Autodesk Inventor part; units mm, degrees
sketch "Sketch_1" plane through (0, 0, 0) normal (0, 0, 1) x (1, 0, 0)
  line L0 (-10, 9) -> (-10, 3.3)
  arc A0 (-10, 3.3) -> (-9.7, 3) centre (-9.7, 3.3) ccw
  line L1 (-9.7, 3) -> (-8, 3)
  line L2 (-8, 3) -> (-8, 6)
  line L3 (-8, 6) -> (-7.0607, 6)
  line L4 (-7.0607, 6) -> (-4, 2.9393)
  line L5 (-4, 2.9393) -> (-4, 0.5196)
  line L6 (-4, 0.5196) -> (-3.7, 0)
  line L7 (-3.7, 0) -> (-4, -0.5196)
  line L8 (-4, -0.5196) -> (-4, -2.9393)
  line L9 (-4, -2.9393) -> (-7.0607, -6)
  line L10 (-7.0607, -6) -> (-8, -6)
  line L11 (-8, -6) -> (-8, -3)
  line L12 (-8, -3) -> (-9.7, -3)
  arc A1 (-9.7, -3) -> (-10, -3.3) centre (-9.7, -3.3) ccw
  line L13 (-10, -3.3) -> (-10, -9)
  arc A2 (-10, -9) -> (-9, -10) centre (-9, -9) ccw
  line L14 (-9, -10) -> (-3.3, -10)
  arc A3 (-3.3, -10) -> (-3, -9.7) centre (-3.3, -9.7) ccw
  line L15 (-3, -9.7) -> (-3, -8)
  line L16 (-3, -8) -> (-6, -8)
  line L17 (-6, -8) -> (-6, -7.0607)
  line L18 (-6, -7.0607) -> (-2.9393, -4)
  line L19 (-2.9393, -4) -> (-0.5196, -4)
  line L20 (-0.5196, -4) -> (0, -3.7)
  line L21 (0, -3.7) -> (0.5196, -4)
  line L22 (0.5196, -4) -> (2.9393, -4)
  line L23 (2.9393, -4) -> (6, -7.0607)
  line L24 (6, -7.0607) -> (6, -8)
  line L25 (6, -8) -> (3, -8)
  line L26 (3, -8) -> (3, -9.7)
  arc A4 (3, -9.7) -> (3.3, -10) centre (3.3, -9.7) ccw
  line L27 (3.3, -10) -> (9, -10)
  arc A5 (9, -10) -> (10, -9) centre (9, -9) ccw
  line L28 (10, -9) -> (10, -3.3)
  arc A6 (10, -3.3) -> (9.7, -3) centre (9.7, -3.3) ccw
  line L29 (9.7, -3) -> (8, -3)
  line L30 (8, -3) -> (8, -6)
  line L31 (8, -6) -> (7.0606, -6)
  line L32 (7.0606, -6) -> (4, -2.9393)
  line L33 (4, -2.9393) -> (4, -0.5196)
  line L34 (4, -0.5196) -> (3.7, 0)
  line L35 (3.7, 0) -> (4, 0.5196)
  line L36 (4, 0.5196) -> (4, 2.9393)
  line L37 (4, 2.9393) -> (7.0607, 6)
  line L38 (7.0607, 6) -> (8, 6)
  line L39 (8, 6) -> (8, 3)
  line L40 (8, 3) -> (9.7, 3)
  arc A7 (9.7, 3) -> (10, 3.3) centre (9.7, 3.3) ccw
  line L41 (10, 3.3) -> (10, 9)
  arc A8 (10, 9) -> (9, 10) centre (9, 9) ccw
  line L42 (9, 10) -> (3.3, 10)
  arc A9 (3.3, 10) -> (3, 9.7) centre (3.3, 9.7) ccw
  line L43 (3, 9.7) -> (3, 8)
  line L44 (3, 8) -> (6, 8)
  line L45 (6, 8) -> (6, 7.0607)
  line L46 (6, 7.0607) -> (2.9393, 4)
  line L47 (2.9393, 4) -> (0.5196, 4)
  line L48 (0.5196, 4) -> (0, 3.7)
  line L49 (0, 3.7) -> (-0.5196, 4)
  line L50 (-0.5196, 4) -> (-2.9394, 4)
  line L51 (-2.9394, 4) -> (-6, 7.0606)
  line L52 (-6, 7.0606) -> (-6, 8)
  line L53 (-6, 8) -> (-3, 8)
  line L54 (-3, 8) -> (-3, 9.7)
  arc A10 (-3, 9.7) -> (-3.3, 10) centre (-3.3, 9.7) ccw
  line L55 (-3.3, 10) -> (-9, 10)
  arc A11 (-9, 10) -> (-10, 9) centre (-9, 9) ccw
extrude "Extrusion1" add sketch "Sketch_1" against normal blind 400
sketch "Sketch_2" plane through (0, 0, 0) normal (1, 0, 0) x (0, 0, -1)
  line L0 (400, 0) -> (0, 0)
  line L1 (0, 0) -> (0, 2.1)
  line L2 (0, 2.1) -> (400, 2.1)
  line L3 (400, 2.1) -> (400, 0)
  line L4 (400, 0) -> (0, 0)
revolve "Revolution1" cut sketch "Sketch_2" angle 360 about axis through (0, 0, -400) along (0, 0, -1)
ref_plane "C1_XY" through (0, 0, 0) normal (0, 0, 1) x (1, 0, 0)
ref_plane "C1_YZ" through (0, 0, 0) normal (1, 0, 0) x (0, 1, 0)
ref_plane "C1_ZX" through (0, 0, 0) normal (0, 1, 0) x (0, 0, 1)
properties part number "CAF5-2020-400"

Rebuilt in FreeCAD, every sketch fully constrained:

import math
import FreeCAD as App
import Part
import Sketcher
Q = App.Units.Quantity


def add_polygon(sketch, points):
    """Adds a closed chain of lines whose ends are joined by coincident constraints."""
    first, n = sketch.GeometryCount, len(points)
    for a, b in zip(points, points[1:] + points[:1]):
        sketch.addGeometry(Part.LineSegment(App.Vector(*a, 0), App.Vector(*b, 0)), False)
    for i in range(n):
        sketch.addConstraint(Sketcher.Constraint("Coincident", first + i, 2, first + (i + 1) % n, 1))

doc = App.newDocument("Part")
body = doc.addObject("PartDesign::Body", "Body")

sketch1 = doc.addObject("Sketcher::SketchObject", "Sketch")
body.addObject(sketch1)
sketch1.AttachmentSupport = (doc.XY_Plane, [""])
sketch1.MapMode = "FlatFace"
sketch1.addGeometry([
    Part.ArcOfCircle(Part.Circle(App.Vector(-9, 9, 0), App.Vector(0, 0, 1), 1), math.radians(90), math.radians(180)),
    Part.LineSegment(App.Vector(-10, 9, 0), App.Vector(-10, 3.3, 0)),
    Part.ArcOfCircle(Part.Circle(App.Vector(-9.7, 3.3, 0), App.Vector(0, 0, 1), 0.3), math.radians(180), math.radians(270)),
    Part.LineSegment(App.Vector(-9.7, 3, 0), App.Vector(-8, 3, 0)),
    Part.LineSegment(App.Vector(-8, 3, 0), App.Vector(-8, 6, 0)),
    Part.LineSegment(App.Vector(-8, 6, 0), App.Vector(-7.06, 6, 0)),
    Part.LineSegment(App.Vector(-7.06, 6, 0), App.Vector(-4, 2.94, 0)),
    Part.LineSegment(App.Vector(-4, 2.94, 0), App.Vector(-4, 0.52, 0)),
    Part.LineSegment(App.Vector(-4, 0.52, 0), App.Vector(-3.7, 0, 0)),
    Part.LineSegment(App.Vector(-3.7, 0, 0), App.Vector(-4, -0.52, 0)),
    Part.LineSegment(App.Vector(-4, -0.52, 0), App.Vector(-4, -2.94, 0)),
    Part.LineSegment(App.Vector(-4, -2.94, 0), App.Vector(-7.06, -6, 0)),
    Part.LineSegment(App.Vector(-7.06, -6, 0), App.Vector(-8, -6, 0)),
    Part.LineSegment(App.Vector(-8, -6, 0), App.Vector(-8, -3, 0)),
    Part.LineSegment(App.Vector(-8, -3, 0), App.Vector(-9.7, -3, 0)),
    Part.ArcOfCircle(Part.Circle(App.Vector(-9.7, -3.3, 0), App.Vector(0, 0, 1), 0.3), math.radians(90), math.radians(180)),
    Part.LineSegment(App.Vector(-10, -3.3, 0), App.Vector(-10, -9, 0)),
    Part.ArcOfCircle(Part.Circle(App.Vector(-9, -9, 0), App.Vector(0, 0, 1), 1), math.radians(180), math.radians(270)),
    Part.LineSegment(App.Vector(-9, -10, 0), App.Vector(-3.3, -10, 0)),
    Part.ArcOfCircle(Part.Circle(App.Vector(-3.3, -9.7, 0), App.Vector(0, 0, 1), 0.3), math.radians(-90), math.radians(0)),
    Part.LineSegment(App.Vector(-3, -9.7, 0), App.Vector(-3, -8, 0)),
    Part.LineSegment(App.Vector(-3, -8, 0), App.Vector(-6, -8, 0)),
    Part.LineSegment(App.Vector(-6, -8, 0), App.Vector(-6, -7.06, 0)),
    Part.LineSegment(App.Vector(-6, -7.06, 0), App.Vector(-2.94, -4, 0)),
    Part.LineSegment(App.Vector(-2.94, -4, 0), App.Vector(-0.52, -4, 0)),
    Part.LineSegment(App.Vector(-0.52, -4, 0), App.Vector(0, -3.7, 0)),
    Part.LineSegment(App.Vector(0, -3.7, 0), App.Vector(0.52, -4, 0)),
    Part.LineSegment(App.Vector(0.52, -4, 0), App.Vector(2.94, -4, 0)),
    Part.LineSegment(App.Vector(2.94, -4, 0), App.Vector(6, -7.06, 0)),
    Part.LineSegment(App.Vector(6, -7.06, 0), App.Vector(6, -8, 0)),
    Part.LineSegment(App.Vector(6, -8, 0), App.Vector(3, -8, 0)),
    Part.LineSegment(App.Vector(3, -8, 0), App.Vector(3, -9.7, 0)),
    Part.ArcOfCircle(Part.Circle(App.Vector(3.3, -9.7, 0), App.Vector(0, 0, 1), 0.3), math.radians(180), math.radians(270)),
    Part.LineSegment(App.Vector(3.3, -10, 0), App.Vector(9, -10, 0)),
    Part.ArcOfCircle(Part.Circle(App.Vector(9, -9, 0), App.Vector(0, 0, 1), 1), math.radians(-90), math.radians(0)),
    Part.LineSegment(App.Vector(10, -9, 0), App.Vector(10, -3.3, 0)),
    Part.ArcOfCircle(Part.Circle(App.Vector(9.7, -3.3, 0), App.Vector(0, 0, 1), 0.3), math.radians(0), math.radians(90)),
    Part.LineSegment(App.Vector(9.7, -3, 0), App.Vector(8, -3, 0)),
    Part.LineSegment(App.Vector(8, -3, 0), App.Vector(8, -6, 0)),
    Part.LineSegment(App.Vector(8, -6, 0), App.Vector(7.06, -6, 0)),
    Part.LineSegment(App.Vector(7.06, -6, 0), App.Vector(4, -2.94, 0)),
    Part.LineSegment(App.Vector(4, -2.94, 0), App.Vector(4, -0.52, 0)),
    Part.LineSegment(App.Vector(4, -0.52, 0), App.Vector(3.7, 0, 0)),
    Part.LineSegment(App.Vector(3.7, 0, 0), App.Vector(4, 0.52, 0)),
    Part.LineSegment(App.Vector(4, 0.52, 0), App.Vector(4, 2.94, 0)),
    Part.LineSegment(App.Vector(4, 2.94, 0), App.Vector(7.06, 6, 0)),
    Part.LineSegment(App.Vector(7.06, 6, 0), App.Vector(8, 6, 0)),
    Part.LineSegment(App.Vector(8, 6, 0), App.Vector(8, 3, 0)),
    Part.LineSegment(App.Vector(8, 3, 0), App.Vector(9.7, 3, 0)),
    Part.ArcOfCircle(Part.Circle(App.Vector(9.7, 3.3, 0), App.Vector(0, 0, 1), 0.3), math.radians(-90), math.radians(0)),
    Part.LineSegment(App.Vector(10, 3.3, 0), App.Vector(10, 9, 0)),
    Part.ArcOfCircle(Part.Circle(App.Vector(9, 9, 0), App.Vector(0, 0, 1), 1), math.radians(0), math.radians(90)),
    Part.LineSegment(App.Vector(9, 10, 0), App.Vector(3.3, 10, 0)),
    Part.ArcOfCircle(Part.Circle(App.Vector(3.3, 9.7, 0), App.Vector(0, 0, 1), 0.3), math.radians(90), math.radians(180)),
    Part.LineSegment(App.Vector(3, 9.7, 0), App.Vector(3, 8, 0)),
    Part.LineSegment(App.Vector(3, 8, 0), App.Vector(6, 8, 0)),
    Part.LineSegment(App.Vector(6, 8, 0), App.Vector(6, 7.06, 0)),
    Part.LineSegment(App.Vector(6, 7.06, 0), App.Vector(2.94, 4, 0)),
    Part.LineSegment(App.Vector(2.94, 4, 0), App.Vector(0.52, 4, 0)),
    Part.LineSegment(App.Vector(0.52, 4, 0), App.Vector(0, 3.7, 0)),
    Part.LineSegment(App.Vector(0, 3.7, 0), App.Vector(-0.52, 4, 0)),
    Part.LineSegment(App.Vector(-0.52, 4, 0), App.Vector(-2.94, 4, 0)),
    Part.LineSegment(App.Vector(-2.94, 4, 0), App.Vector(-6, 7.06, 0)),
    Part.LineSegment(App.Vector(-6, 7.06, 0), App.Vector(-6, 8, 0)),
    Part.LineSegment(App.Vector(-6, 8, 0), App.Vector(-3, 8, 0)),
    Part.LineSegment(App.Vector(-3, 8, 0), App.Vector(-3, 9.7, 0)),
    Part.ArcOfCircle(Part.Circle(App.Vector(-3.3, 9.7, 0), App.Vector(0, 0, 1), 0.3), math.radians(0), math.radians(90)),
    Part.LineSegment(App.Vector(-3.3, 10, 0), App.Vector(-9, 10, 0)),
], False)
sketch1.addConstraint([
    Sketcher.Constraint("Tangent", 0, 2, 1, 1),
    Sketcher.Constraint("Tangent", 1, 2, 2, 1),
    Sketcher.Constraint("Tangent", 2, 2, 3, 1),
    Sketcher.Constraint("Coincident", 3, 2, 4, 1),
    Sketcher.Constraint("Coincident", 4, 2, 5, 1),
    Sketcher.Constraint("Coincident", 5, 2, 6, 1),
    Sketcher.Constraint("Coincident", 6, 2, 7, 1),
    Sketcher.Constraint("Coincident", 7, 2, 8, 1),
    Sketcher.Constraint("Coincident", 8, 2, 9, 1),
    Sketcher.Constraint("Coincident", 9, 2, 10, 1),
    Sketcher.Constraint("Coincident", 10, 2, 11, 1),
    Sketcher.Constraint("Coincident", 11, 2, 12, 1),
    Sketcher.Constraint("Coincident", 12, 2, 13, 1),
    Sketcher.Constraint("Coincident", 13, 2, 14, 1),
    Sketcher.Constraint("Tangent", 14, 2, 15, 1),
    Sketcher.Constraint("Tangent", 15, 2, 16, 1),
    Sketcher.Constraint("Tangent", 16, 2, 17, 1),
    Sketcher.Constraint("Tangent", 17, 2, 18, 1),
    Sketcher.Constraint("Tangent", 18, 2, 19, 1),
    Sketcher.Constraint("Tangent", 19, 2, 20, 1),
    Sketcher.Constraint("Coincident", 20, 2, 21, 1),
    Sketcher.Constraint("Coincident", 21, 2, 22, 1),
    Sketcher.Constraint("Coincident", 22, 2, 23, 1),
    Sketcher.Constraint("Coincident", 23, 2, 24, 1),
    Sketcher.Constraint("Coincident", 24, 2, 25, 1),
    Sketcher.Constraint("Coincident", 25, 2, 26, 1),
    Sketcher.Constraint("Coincident", 26, 2, 27, 1),
    Sketcher.Constraint("Coincident", 27, 2, 28, 1),
    Sketcher.Constraint("Coincident", 28, 2, 29, 1),
    Sketcher.Constraint("Coincident", 29, 2, 30, 1),
    Sketcher.Constraint("Coincident", 30, 2, 31, 1),
    Sketcher.Constraint("Tangent", 31, 2, 32, 1),
    Sketcher.Constraint("Tangent", 32, 2, 33, 1),
    Sketcher.Constraint("Tangent", 33, 2, 34, 1),
    Sketcher.Constraint("Tangent", 34, 2, 35, 1),
    Sketcher.Constraint("Tangent", 35, 2, 36, 1),
    Sketcher.Constraint("Tangent", 36, 2, 37, 1),
    Sketcher.Constraint("Coincident", 37, 2, 38, 1),
    Sketcher.Constraint("Coincident", 38, 2, 39, 1),
    Sketcher.Constraint("Coincident", 39, 2, 40, 1),
    Sketcher.Constraint("Coincident", 40, 2, 41, 1),
    Sketcher.Constraint("Coincident", 41, 2, 42, 1),
    Sketcher.Constraint("Coincident", 42, 2, 43, 1),
    Sketcher.Constraint("Coincident", 43, 2, 44, 1),
    Sketcher.Constraint("Coincident", 44, 2, 45, 1),
    Sketcher.Constraint("Coincident", 45, 2, 46, 1),
    Sketcher.Constraint("Coincident", 46, 2, 47, 1),
    Sketcher.Constraint("Coincident", 47, 2, 48, 1),
    Sketcher.Constraint("Tangent", 48, 2, 49, 1),
    Sketcher.Constraint("Tangent", 49, 2, 50, 1),
    Sketcher.Constraint("Tangent", 50, 2, 51, 1),
    Sketcher.Constraint("Tangent", 51, 2, 52, 1),
    Sketcher.Constraint("Tangent", 52, 2, 53, 1),
    Sketcher.Constraint("Tangent", 53, 2, 54, 1),
    Sketcher.Constraint("Coincident", 54, 2, 55, 1),
    Sketcher.Constraint("Coincident", 55, 2, 56, 1),
    Sketcher.Constraint("Coincident", 56, 2, 57, 1),
    Sketcher.Constraint("Coincident", 57, 2, 58, 1),
    Sketcher.Constraint("Coincident", 58, 2, 59, 1),
    Sketcher.Constraint("Coincident", 59, 2, 60, 1),
    Sketcher.Constraint("Coincident", 60, 2, 61, 1),
    Sketcher.Constraint("Coincident", 61, 2, 62, 1),
    Sketcher.Constraint("Coincident", 62, 2, 63, 1),
    Sketcher.Constraint("Coincident", 63, 2, 64, 1),
    Sketcher.Constraint("Coincident", 64, 2, 65, 1),
    Sketcher.Constraint("Tangent", 65, 2, 66, 1),
    Sketcher.Constraint("Tangent", 66, 2, 67, 1),
    Sketcher.Constraint("Tangent", 67, 2, 0, 1),
    Sketcher.Constraint("Vertical", 1),
    Sketcher.Constraint("Horizontal", 3),
    Sketcher.Constraint("Vertical", 4),
    Sketcher.Constraint("Horizontal", 5),
    Sketcher.Constraint("Vertical", 7),
    Sketcher.Constraint("Vertical", 10),
    Sketcher.Constraint("Horizontal", 12),
    Sketcher.Constraint("Vertical", 13),
    Sketcher.Constraint("Horizontal", 14),
    Sketcher.Constraint("Vertical", 16),
    Sketcher.Constraint("Horizontal", 18),
    Sketcher.Constraint("Vertical", 20),
    Sketcher.Constraint("Horizontal", 21),
    Sketcher.Constraint("Vertical", 22),
    Sketcher.Constraint("Horizontal", 24),
    Sketcher.Constraint("Horizontal", 27),
    Sketcher.Constraint("Vertical", 29),
    Sketcher.Constraint("Horizontal", 30),
    Sketcher.Constraint("Vertical", 31),
    Sketcher.Constraint("Horizontal", 33),
    Sketcher.Constraint("Vertical", 35),
    Sketcher.Constraint("Horizontal", 37),
    Sketcher.Constraint("Vertical", 38),
    Sketcher.Constraint("Horizontal", 39),
    Sketcher.Constraint("Vertical", 41),
    Sketcher.Constraint("Vertical", 44),
    Sketcher.Constraint("Horizontal", 46),
    Sketcher.Constraint("Vertical", 47),
    Sketcher.Constraint("Horizontal", 48),
    Sketcher.Constraint("Vertical", 50),
    Sketcher.Constraint("Horizontal", 52),
    Sketcher.Constraint("Vertical", 54),
    Sketcher.Constraint("Horizontal", 55),
    Sketcher.Constraint("Vertical", 56),
    Sketcher.Constraint("Horizontal", 58),
    Sketcher.Constraint("Horizontal", 61),
    Sketcher.Constraint("Vertical", 63),
    Sketcher.Constraint("Horizontal", 64),
    Sketcher.Constraint("Vertical", 65),
    Sketcher.Constraint("Horizontal", 67),
    Sketcher.Constraint("Equal", 2, 15),
    Sketcher.Constraint("Equal", 0, 17),
    Sketcher.Constraint("Equal", 15, 19),
    Sketcher.Constraint("Equal", 19, 32),
    Sketcher.Constraint("Equal", 17, 34),
    Sketcher.Constraint("Equal", 32, 36),
    Sketcher.Constraint("Equal", 36, 49),
    Sketcher.Constraint("Equal", 34, 51),
    Sketcher.Constraint("Equal", 49, 53),
    Sketcher.Constraint("Equal", 53, 66),
    Sketcher.Constraint("Symmetric", 0, 3, 34, 3, -1, 1),
    Sketcher.Constraint("Symmetric", 15, 3, 49, 3, -1, 1),
    Sketcher.Constraint("Symmetric", 19, 3, 53, 3, -1, 1),
    Sketcher.Constraint("Symmetric", 3, 2, 37, 2, -1, 1),
    Sketcher.Constraint("Symmetric", 5, 2, 39, 2, -1, 1),
    Sketcher.Constraint("Symmetric", 6, 2, 40, 2, -1, 1),
    Sketcher.Constraint("Symmetric", 8, 2, 42, 2, -1, 1),
    Sketcher.Constraint("Symmetric", 9, 2, 43, 2, -1, 1),
    Sketcher.Constraint("Symmetric", 11, 2, 45, 2, -1, 1),
    Sketcher.Constraint("Symmetric", 21, 2, 55, 2, -1, 1),
    Sketcher.Constraint("Symmetric", 23, 2, 57, 2, -1, 1),
    Sketcher.Constraint("Symmetric", 25, 2, 59, 2, -1, 1),
    Sketcher.Constraint("Symmetric", 26, 2, 60, 2, -1, 1),
    Sketcher.Constraint("Symmetric", 28, 2, 62, 2, -1, 1),
    Sketcher.Constraint("Symmetric", 30, 2, 64, 2, -1, 1),
    Sketcher.Constraint("Symmetric", 19, 3, 32, 3, -2),
    Sketcher.Constraint("Symmetric", 15, 3, 36, 3, -2),
    Sketcher.Constraint("Symmetric", 24, 2, 26, 2, -2),
    Sketcher.Constraint("Symmetric", 22, 2, 28, 2, -2),
    Sketcher.Constraint("Symmetric", 12, 2, 38, 2, -2),
    Sketcher.Constraint("Symmetric", 10, 2, 40, 2, -2),
    Sketcher.Constraint("PointOnObject", 8, 2, -1),
    Sketcher.Constraint("PointOnObject", 25, 2, -2),
    Sketcher.Constraint("Perpendicular", 6, 11),
    Sketcher.Constraint("Parallel", 11, 23),
    Sketcher.Constraint("Perpendicular", 8, 25),
    Sketcher.Constraint("Perpendicular", 9, 26),
    Sketcher.Constraint("Perpendicular", 23, 28),
    Sketcher.Constraint("Perpendicular", 25, 42),
    Sketcher.Constraint("Perpendicular", 40, 45),
    Sketcher.Constraint("Parallel", 45, 57),
    Sketcher.Constraint("Perpendicular", 42, 59),
    Sketcher.Constraint("Perpendicular", 57, 62),
    Sketcher.Constraint("Horizontal", 21, 2, 29, 2),
    Sketcher.Constraint("Vertical", 5, 2, 11, 2),
    Sketcher.Constraint("Vertical", 38, 2, 46, 2),
    Sketcher.Constraint("Equal", 67, 1),
    Sketcher.Constraint("Equal", 64, 4),
    Sketcher.Constraint("Equal", 61, 7),
    Sketcher.Constraint("Equal", 48, 20),
    Sketcher.Constraint("Equal", 46, 22),
    Sketcher.Constraint("Equal", 11, 23),
    Sketcher.Constraint("Equal", 9, 25),
    Sketcher.Constraint("Radius", 0, Q("1 mm")),
    Sketcher.Constraint("Radius", 2, Q("0.3 mm")),
    Sketcher.Constraint("DistanceX", 21, 2, 21, 1, Q("3 mm")),
    Sketcher.Constraint("Angle", 8, Q("-59.9993 deg")),
    Sketcher.Constraint("DistanceX", 3, 1, 3, 2, Q("1.7 mm")),
    Sketcher.Constraint("DistanceX", 18, 1, 18, 2, Q("5.7 mm")),
    Sketcher.Constraint("DistanceX", 0, 3, -1, 1, Q("9 mm")),
    Sketcher.Constraint("DistanceX", 6, 2, -1, 1, Q("4 mm")),
    Sketcher.Constraint("Distance", 8, Q("0.6 mm")),
    Sketcher.Constraint("DistanceX", 5, 1, 5, 2, Q("0.9393 mm")),
])
pad1 = doc.addObject("PartDesign::Pad", "Pad")
body.addObject(pad1)
pad1.Profile = sketch1
pad1.Length = 400
pad1.Reversed = True

sketch2 = doc.addObject("Sketcher::SketchObject", "Sketch001")
body.addObject(sketch2)
sketch2.AttachmentSupport = (doc.YZ_Plane, [""])
sketch2.MapMode = "FlatFace"
add_polygon(sketch2, [(0, 0), (0, -400), (2.1, -400), (2.1, 0)])
sketch2.addConstraint([
    Sketcher.Constraint("Vertical", 0),
    Sketcher.Constraint("Horizontal", 1),
    Sketcher.Constraint("Vertical", 2),
    Sketcher.Constraint("Horizontal", 3),
    Sketcher.Constraint("Coincident", 3, 2, -1, 1),
    Sketcher.Constraint("DistanceY", 0, 2, 0, 1, Q("400 mm")),
    Sketcher.Constraint("DistanceX", 1, 1, 1, 2, Q("2.1 mm")),
])
groove = doc.addObject("PartDesign::Groove", "Groove")
body.addObject(groove)
groove.Profile = sketch2
groove.ReferenceAxis = (sketch2, ["V_Axis"])
groove.Angle = 360

doc.recompute()
